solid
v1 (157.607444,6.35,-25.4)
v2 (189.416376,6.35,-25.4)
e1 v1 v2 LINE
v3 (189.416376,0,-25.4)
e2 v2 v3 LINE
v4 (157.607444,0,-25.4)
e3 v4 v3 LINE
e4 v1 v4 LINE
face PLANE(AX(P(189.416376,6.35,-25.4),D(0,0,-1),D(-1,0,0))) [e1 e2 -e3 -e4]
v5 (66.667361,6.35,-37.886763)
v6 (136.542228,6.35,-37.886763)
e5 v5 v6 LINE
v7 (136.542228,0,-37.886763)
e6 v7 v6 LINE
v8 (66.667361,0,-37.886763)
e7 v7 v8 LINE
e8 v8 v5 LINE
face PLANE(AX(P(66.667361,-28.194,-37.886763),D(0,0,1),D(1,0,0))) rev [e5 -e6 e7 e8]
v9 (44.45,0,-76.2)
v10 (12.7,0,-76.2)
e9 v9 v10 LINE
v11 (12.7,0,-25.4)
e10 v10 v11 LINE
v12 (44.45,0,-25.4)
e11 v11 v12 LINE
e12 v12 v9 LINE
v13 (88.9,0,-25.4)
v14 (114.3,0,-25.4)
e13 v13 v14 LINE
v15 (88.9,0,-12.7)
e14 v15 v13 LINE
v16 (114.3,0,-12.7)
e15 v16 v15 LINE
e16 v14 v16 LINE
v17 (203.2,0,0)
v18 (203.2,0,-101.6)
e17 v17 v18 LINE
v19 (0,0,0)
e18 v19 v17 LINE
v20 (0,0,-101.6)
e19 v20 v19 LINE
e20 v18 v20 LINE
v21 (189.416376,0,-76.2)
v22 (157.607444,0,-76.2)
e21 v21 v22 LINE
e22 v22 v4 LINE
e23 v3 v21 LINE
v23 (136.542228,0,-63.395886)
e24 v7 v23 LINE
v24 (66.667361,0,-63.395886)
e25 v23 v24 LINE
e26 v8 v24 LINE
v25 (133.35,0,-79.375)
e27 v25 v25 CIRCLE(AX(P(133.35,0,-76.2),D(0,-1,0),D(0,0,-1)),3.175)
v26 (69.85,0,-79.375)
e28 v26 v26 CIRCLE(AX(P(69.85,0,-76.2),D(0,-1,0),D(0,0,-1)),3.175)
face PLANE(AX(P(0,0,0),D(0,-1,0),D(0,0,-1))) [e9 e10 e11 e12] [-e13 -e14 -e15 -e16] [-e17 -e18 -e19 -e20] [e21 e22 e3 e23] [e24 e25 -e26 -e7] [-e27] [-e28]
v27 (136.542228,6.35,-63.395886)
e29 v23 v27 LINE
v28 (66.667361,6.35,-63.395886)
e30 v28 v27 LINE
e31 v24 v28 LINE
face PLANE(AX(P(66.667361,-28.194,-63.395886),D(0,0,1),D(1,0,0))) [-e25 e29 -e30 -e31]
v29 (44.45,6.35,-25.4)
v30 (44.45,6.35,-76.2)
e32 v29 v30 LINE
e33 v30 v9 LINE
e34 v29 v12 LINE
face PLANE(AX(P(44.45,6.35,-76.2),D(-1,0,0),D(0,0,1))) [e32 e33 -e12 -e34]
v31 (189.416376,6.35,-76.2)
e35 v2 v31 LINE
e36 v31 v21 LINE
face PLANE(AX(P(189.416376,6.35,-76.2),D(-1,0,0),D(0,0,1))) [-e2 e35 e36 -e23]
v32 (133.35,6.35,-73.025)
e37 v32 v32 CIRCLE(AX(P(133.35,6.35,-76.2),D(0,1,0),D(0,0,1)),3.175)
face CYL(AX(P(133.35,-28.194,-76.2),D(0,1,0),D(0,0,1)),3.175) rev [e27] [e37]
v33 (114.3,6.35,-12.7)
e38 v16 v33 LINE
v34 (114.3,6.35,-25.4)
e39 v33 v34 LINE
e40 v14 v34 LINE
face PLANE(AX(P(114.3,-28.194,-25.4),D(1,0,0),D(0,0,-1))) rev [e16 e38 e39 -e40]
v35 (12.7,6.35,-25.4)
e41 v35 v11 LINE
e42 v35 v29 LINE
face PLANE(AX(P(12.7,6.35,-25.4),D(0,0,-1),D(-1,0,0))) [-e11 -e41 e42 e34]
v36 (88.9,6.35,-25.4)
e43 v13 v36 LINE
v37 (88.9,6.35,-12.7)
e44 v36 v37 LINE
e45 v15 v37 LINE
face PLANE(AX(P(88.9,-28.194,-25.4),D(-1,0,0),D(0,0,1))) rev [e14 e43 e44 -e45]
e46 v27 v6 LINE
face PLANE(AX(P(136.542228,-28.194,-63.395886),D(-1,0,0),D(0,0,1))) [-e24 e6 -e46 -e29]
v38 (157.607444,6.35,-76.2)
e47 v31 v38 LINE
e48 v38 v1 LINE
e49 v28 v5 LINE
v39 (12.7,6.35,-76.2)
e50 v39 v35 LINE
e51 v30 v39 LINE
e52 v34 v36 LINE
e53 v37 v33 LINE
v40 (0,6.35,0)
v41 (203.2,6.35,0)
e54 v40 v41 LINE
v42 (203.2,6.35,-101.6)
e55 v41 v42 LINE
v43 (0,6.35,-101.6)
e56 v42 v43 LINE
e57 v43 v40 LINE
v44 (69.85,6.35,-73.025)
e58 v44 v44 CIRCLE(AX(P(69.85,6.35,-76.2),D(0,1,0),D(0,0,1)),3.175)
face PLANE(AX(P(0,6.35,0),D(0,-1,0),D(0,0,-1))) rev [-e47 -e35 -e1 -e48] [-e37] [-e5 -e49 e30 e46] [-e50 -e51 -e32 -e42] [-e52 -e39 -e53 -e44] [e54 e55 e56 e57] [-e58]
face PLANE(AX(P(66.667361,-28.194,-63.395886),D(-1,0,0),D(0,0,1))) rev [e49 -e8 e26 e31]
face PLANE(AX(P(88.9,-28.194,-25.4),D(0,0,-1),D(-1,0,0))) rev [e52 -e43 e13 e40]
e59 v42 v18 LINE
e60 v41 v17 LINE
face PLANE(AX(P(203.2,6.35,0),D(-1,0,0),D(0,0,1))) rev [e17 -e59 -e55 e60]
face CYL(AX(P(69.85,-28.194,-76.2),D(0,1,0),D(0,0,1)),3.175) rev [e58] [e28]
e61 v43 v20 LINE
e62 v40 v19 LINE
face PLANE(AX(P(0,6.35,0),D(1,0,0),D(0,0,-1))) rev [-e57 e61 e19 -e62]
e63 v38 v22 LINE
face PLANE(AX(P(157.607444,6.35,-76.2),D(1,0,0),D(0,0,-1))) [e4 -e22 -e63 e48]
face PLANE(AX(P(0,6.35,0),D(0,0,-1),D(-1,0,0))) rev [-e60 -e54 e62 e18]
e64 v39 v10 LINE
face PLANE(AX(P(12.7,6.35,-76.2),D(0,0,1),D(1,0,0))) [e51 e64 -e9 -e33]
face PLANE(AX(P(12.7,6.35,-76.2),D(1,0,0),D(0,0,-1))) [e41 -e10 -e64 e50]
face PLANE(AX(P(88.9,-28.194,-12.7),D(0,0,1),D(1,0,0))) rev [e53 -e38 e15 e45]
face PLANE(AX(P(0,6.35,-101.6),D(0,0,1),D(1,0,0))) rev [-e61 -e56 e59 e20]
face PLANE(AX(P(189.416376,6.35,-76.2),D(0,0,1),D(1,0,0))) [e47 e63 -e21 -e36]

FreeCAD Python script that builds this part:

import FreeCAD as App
import Part
import Sketcher
from FreeCAD import Vector
Q = App.Units.Quantity


def add_polygon(sketch, points):
    """Adds a closed chain of lines whose ends are joined by coincident constraints."""
    first, n = sketch.GeometryCount, len(points)
    for a, b in zip(points, points[1:] + points[:1]):
        sketch.addGeometry(Part.LineSegment(App.Vector(*a, 0), App.Vector(*b, 0)), False)
    for i in range(n):
        sketch.addConstraint(Sketcher.Constraint("Coincident", first + i, 2, first + (i + 1) % n, 1))

doc = App.newDocument("Part")
body = doc.addObject("PartDesign::Body", "Body")

sketch1 = body.newObject("Sketcher::SketchObject", "Sketch")
sketch1.AttachmentSupport = (doc.getObject("XZ_Plane"), [""])
sketch1.MapMode = "FlatFace"
add_polygon(sketch1, [(0, -102), (0, 0), (203, 0), (203, -102)])
add_polygon(sketch1, [(44, -25), (13, -25), (13, -76), (44, -76)])
add_polygon(sketch1, [(189, -25), (158, -25), (158, -76), (189, -76)])
sketch1.addConstraint([
    Sketcher.Constraint("Vertical", 0),
    Sketcher.Constraint("Horizontal", 1),
    Sketcher.Constraint("Vertical", 2),
    Sketcher.Constraint("Horizontal", 3),
    Sketcher.Constraint("Horizontal", 4),
    Sketcher.Constraint("Vertical", 5),
    Sketcher.Constraint("Horizontal", 6),
    Sketcher.Constraint("Vertical", 7),
    Sketcher.Constraint("Horizontal", 8),
    Sketcher.Constraint("Vertical", 9),
    Sketcher.Constraint("Horizontal", 10),
    Sketcher.Constraint("Vertical", 11),
    Sketcher.Constraint("Coincident", 0, 2, -1, 1),
    Sketcher.Constraint("Horizontal", 7, 2, 8, 2),
    Sketcher.Constraint("Horizontal", 6, 2, 9, 2),
    Sketcher.Constraint("DistanceX", 1, 1, 1, 2, Q("8 in")),
    Sketcher.Constraint("DistanceY", 0, 1, 0, 2, Q("4 in")),
    Sketcher.Constraint("DistanceY", 5, 2, 5, 1, Q("2 in")),
    Sketcher.Constraint("DistanceY", 4, 2, -1, 1, Q("1 in")),
    Sketcher.Constraint("DistanceX", 4, 2, 4, 1, Q("1.25 in")),
    Sketcher.Constraint("DistanceX", -1, 1, 4, 2, Q("0.5 in")),
    Sketcher.Constraint("DistanceX", 8, 2, 8, 1, 31.808931),
    Sketcher.Constraint("DistanceX", -1, 1, 8, 2, 157.607444),
])
pad1 = body.newObject("PartDesign::Pad", "Pad")
pad1.Profile = sketch1
pad1.Length = Q("0.25 in")
pad1.Reversed = True

sketch2 = body.newObject("Sketcher::SketchObject", "Sketch001")
sketch2.AttachmentSupport = (doc.getObject("XZ_Plane"), [""])
sketch2.MapMode = "FlatFace"
sketch2.AttachmentOffset = App.Placement(Vector(0, 0, -0.25 * 25.4), App.Rotation())
sketch2.addGeometry([
    Part.Circle(Vector(69.8, -76.2, 0), Vector(0, 0, 1), 3.2),
    Part.Circle(Vector(133.3, -76.2, 0), Vector(0, 0, 1), 3.2),
], False)
sketch2.addConstraint([
    Sketcher.Constraint("Equal", 0, 1),
    Sketcher.Constraint("Horizontal", 0, 3, 1, 3),
    Sketcher.Constraint("Diameter", 0, Q("0.25 in")),
    Sketcher.Constraint("DistanceY", 0, 3, -1, 1, Q("3 in")),
    Sketcher.Constraint("DistanceX", 0, 3, 1, 3, Q("2.5 in")),
    Sketcher.Constraint("DistanceX", -1, 1, 0, 3, Q("2.75 in")),
])
pocket1 = body.newObject("PartDesign::Pocket", "Pocket")
pocket1.Profile = sketch2
pocket1.Length = Q("1.36 in")
pocket1.Reversed = True

sketch3 = body.newObject("Sketcher::SketchObject", "Sketch002")
sketch3.AttachmentSupport = (doc.getObject("XZ_Plane"), [""])
sketch3.MapMode = "FlatFace"
sketch3.AttachmentOffset = App.Placement(Vector(0, 0, -0.25 * 25.4), App.Rotation())
add_polygon(sketch3, [(67, -63), (67, -38), (137, -38), (137, -63)])
sketch3.addConstraint([
    Sketcher.Constraint("Vertical", 0),
    Sketcher.Constraint("Horizontal", 1),
    Sketcher.Constraint("Vertical", 2),
    Sketcher.Constraint("Horizontal", 3),
    Sketcher.Constraint("DistanceX", 1, 1, 1, 2, 69.874867),
    Sketcher.Constraint("DistanceY", 0, 1, 0, 2, 25.509123),
    Sketcher.Constraint("DistanceX", -1, 1, 0, 2, 66.667361),
    Sketcher.Constraint("DistanceY", 0, 2, -1, 1, 37.886763),
])
pocket2 = body.newObject("PartDesign::Pocket", "Pocket001")
pocket2.Profile = sketch3
pocket2.Length = Q("1.36 in")
pocket2.Reversed = True

sketch4 = body.newObject("Sketcher::SketchObject", "Sketch003")
sketch4.AttachmentSupport = (doc.getObject("XZ_Plane"), [""])
sketch4.MapMode = "FlatFace"
sketch4.AttachmentOffset = App.Placement(Vector(0, 0, -0.25 * 25.4), App.Rotation())
add_polygon(sketch4, [(89, -25), (89, -13), (114, -13), (114, -25)])
sketch4.addConstraint([
    Sketcher.Constraint("Vertical", 0),
    Sketcher.Constraint("Horizontal", 1),
    Sketcher.Constraint("Vertical", 2),
    Sketcher.Constraint("Horizontal", 3),
    Sketcher.Constraint("DistanceX", 1, 1, 1, 2, Q("1 in")),
    Sketcher.Constraint("DistanceY", 0, 1, 0, 2, Q("0.5 in")),
    Sketcher.Constraint("DistanceY", 2, 2, -1, 1, Q("1 in")),
    Sketcher.Constraint("DistanceX", -1, 1, 0, 2, Q("3.5 in")),
])
pocket3 = body.newObject("PartDesign::Pocket", "Pocket002")
pocket3.Profile = sketch4
pocket3.Length = Q("1.36 in")
pocket3.Reversed = True

doc.recompute()
